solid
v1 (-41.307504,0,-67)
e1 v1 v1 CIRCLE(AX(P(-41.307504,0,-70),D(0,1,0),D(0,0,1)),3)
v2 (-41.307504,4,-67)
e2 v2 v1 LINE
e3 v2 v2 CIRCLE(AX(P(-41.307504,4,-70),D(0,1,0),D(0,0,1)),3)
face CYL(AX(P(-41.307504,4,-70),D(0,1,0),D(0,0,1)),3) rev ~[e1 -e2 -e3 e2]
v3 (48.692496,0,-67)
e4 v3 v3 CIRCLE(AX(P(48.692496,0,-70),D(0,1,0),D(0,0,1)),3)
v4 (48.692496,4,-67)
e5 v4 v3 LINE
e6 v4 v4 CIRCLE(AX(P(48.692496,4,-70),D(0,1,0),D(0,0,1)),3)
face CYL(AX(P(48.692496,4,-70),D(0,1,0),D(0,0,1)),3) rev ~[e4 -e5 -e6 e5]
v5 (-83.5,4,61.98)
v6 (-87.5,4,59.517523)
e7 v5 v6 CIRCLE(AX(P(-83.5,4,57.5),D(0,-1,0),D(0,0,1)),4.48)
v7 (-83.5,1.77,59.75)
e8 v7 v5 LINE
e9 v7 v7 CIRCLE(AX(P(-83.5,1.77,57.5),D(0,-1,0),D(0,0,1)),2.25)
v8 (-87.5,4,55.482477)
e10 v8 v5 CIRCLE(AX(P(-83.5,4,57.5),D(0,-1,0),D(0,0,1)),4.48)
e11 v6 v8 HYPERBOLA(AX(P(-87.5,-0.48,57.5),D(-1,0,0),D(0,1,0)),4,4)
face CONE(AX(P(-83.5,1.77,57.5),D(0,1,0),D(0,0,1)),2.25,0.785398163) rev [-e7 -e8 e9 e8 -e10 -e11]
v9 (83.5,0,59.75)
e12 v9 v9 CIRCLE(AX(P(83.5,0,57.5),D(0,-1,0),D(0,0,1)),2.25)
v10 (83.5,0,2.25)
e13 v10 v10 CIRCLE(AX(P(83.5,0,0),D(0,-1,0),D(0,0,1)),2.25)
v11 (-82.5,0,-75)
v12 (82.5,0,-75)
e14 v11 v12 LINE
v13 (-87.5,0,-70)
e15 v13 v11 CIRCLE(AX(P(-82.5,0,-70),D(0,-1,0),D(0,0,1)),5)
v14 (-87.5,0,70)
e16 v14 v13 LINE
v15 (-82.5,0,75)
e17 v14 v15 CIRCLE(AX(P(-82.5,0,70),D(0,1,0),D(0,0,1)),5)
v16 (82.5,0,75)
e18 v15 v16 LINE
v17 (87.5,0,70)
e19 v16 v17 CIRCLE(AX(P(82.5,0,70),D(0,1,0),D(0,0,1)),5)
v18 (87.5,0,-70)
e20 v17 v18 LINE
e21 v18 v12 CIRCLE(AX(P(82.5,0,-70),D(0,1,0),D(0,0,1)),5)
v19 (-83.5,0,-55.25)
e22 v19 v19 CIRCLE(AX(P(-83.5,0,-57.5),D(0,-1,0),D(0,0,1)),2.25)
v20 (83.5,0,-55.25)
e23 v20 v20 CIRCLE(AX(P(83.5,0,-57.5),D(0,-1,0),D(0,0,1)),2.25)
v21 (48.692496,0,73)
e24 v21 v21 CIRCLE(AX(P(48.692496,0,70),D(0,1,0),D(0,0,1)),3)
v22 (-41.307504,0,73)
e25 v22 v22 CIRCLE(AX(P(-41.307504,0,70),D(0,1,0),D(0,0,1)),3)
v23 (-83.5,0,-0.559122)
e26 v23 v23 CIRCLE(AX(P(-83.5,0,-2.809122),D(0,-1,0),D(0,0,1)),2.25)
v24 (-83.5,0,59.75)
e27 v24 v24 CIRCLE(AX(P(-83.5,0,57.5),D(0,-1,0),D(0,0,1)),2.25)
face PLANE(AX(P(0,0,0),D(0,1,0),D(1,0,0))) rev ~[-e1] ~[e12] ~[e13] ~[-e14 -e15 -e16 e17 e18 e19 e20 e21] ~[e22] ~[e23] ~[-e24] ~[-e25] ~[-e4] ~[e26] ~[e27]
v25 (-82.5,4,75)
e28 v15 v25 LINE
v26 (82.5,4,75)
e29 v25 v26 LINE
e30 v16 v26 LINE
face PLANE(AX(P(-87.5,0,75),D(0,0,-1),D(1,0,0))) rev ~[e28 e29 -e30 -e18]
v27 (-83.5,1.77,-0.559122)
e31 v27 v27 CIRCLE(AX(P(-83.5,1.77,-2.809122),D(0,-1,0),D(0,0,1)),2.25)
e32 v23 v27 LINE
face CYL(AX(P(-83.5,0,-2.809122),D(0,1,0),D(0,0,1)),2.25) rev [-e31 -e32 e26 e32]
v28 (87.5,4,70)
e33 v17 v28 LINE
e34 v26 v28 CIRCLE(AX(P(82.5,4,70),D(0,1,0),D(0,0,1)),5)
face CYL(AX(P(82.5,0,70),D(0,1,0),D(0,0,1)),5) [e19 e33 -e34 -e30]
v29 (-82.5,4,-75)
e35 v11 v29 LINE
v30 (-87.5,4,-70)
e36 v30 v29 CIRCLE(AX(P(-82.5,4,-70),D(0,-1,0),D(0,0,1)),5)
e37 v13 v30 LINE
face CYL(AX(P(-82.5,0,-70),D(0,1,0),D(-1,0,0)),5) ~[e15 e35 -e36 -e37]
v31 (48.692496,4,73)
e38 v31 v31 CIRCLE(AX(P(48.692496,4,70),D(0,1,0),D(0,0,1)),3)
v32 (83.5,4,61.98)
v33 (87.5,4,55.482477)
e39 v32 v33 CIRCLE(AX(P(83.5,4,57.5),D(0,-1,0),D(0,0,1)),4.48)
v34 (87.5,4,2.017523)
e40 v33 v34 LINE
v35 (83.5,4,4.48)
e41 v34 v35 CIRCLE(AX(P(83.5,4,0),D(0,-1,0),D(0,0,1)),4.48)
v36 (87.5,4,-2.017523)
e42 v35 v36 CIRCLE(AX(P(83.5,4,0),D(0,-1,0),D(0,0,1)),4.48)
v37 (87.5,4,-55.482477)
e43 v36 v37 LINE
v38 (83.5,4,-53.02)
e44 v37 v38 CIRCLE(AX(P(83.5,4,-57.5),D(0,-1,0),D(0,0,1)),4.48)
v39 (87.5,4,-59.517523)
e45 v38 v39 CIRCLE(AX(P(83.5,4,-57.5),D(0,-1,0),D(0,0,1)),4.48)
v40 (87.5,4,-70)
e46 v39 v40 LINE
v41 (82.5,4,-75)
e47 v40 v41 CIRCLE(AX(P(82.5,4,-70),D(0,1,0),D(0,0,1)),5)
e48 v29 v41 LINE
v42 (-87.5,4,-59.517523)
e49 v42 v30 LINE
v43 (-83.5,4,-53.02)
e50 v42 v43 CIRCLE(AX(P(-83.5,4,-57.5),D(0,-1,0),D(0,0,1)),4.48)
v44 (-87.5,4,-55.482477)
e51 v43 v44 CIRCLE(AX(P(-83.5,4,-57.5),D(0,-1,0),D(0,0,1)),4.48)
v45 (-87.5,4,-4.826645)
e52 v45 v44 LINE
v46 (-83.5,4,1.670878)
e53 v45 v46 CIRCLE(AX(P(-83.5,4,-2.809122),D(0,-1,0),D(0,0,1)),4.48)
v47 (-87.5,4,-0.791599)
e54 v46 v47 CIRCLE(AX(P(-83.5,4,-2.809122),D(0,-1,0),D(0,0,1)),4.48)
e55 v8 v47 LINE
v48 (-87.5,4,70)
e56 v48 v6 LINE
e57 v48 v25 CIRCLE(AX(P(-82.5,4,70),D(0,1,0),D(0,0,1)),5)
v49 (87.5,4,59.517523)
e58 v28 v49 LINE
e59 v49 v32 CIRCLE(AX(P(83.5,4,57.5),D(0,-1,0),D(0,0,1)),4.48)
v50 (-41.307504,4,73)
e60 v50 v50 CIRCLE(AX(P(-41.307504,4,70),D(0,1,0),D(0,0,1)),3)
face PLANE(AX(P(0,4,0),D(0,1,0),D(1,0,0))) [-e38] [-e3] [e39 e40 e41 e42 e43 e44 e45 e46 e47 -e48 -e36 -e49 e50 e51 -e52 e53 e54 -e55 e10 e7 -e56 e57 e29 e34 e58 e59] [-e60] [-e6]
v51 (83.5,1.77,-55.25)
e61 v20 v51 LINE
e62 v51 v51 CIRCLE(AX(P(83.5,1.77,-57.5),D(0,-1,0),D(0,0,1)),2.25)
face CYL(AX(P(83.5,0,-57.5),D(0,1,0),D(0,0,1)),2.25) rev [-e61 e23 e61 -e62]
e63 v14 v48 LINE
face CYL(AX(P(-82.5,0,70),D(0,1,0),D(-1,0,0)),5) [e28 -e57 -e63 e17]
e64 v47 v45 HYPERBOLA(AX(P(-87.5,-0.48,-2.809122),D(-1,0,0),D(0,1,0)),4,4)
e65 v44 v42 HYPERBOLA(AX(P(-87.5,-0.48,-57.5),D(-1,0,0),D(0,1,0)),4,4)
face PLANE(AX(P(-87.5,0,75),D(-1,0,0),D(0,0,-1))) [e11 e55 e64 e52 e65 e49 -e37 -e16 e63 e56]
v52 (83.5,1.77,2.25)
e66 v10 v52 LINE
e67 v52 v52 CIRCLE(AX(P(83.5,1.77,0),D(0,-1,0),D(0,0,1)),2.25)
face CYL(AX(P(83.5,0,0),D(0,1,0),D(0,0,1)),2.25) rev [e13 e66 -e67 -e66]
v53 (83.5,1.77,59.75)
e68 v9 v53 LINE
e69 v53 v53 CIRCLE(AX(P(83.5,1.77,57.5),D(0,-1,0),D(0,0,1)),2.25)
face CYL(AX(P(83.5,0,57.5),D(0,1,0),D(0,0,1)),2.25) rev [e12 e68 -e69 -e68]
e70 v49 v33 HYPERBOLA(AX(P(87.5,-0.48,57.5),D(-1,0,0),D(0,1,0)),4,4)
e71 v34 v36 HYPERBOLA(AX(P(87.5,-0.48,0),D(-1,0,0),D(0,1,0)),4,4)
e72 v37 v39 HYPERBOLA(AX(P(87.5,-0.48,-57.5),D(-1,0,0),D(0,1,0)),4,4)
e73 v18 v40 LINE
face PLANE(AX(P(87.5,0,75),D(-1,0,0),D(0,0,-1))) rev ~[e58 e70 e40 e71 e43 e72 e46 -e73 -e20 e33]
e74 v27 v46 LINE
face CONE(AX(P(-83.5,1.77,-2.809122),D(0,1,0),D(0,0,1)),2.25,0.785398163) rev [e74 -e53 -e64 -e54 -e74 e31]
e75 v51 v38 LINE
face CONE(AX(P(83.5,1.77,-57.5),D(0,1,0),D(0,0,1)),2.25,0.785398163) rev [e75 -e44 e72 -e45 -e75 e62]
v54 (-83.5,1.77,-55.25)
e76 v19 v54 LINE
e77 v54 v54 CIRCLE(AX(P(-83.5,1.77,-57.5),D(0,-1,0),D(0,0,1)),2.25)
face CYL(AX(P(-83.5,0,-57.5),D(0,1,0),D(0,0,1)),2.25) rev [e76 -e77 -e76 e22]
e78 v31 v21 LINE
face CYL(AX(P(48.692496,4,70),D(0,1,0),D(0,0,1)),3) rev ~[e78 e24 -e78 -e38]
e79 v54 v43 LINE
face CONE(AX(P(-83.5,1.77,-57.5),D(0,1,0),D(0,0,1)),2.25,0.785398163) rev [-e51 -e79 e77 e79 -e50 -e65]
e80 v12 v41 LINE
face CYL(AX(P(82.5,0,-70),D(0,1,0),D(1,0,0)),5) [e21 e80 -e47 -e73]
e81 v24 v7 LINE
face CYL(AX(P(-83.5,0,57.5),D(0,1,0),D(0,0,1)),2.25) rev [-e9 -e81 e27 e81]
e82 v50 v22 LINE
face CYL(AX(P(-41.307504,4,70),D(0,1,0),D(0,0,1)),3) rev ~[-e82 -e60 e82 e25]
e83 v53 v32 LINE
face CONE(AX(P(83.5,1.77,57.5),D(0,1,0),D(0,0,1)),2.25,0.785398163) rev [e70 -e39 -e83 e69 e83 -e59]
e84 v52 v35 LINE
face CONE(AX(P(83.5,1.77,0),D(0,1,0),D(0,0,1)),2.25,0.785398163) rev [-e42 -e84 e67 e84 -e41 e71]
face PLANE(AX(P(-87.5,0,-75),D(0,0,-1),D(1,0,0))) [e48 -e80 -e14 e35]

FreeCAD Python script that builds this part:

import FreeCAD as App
import Part
import Sketcher

V = App.Vector
Q = App.Units.Quantity


def edges_at(feature, points):
    """Names of the edges that pass closest to the given points."""
    edges = feature.Shape.Edges
    near = lambda p: min(range(len(edges)), key=lambda i: edges[i].distToShape(Part.Vertex(*p))[0])
    return sorted({f"Edge{near(p) + 1}" for p in points})

doc = App.newDocument("Part")
params = doc.addObject("Spreadsheet::Sheet", "Params")
for row, (alias, value) in enumerate([
    ("sketch1_width", "175 mm"),
    ("sketch1_height", "150 mm"),
    ("pad1_length", "4 mm"),
    ("fillet_radius", "5 mm"),
    ("sketch2_diameter", "4 mm"),
    ("sketch2_diameter2", "6 mm"),
    ("pocket1_length", "10 mm"),
    ("sketch3_width", "4 mm"),
    ("sketch3_width2", "1.77 mm"),
    ("sketch3_height", "4.48 mm"),
    ("groove_angle", "360 deg"),
    ("linearpattern_pitch", "54.690878 mm"),
    ("linearpattern2_pitch", "115 mm"),
    ("linearpattern3_pitch", "202.765875 mm"),
    ("linearpattern4_pitch", "176.621771 mm"),
    ("linearpattern5_pitch", "167 mm"),
], start=1):
    params.set(f"A{row}", alias)
    params.set(f"B{row}", "=" + value)
    params.setAlias(f"B{row}", alias)

body = doc.addObject("PartDesign::Body", "Body")

# Sketch on XZ plane
sketch1 = doc.addObject("Sketcher::SketchObject", "Sketch")
body.addObject(sketch1)
sketch1.AttachmentSupport = (doc.XZ_Plane, [""])
sketch1.MapMode = "FlatFace"
sketch1.addGeometry([
    Part.LineSegment(V(-88, -75, 0), V(-88, 75, 0)),
    Part.LineSegment(V(-88, 75, 0), V(88, 75, 0)),
    Part.LineSegment(V(88, 75, 0), V(88, -75, 0)),
    Part.LineSegment(V(88, -75, 0), V(-88, -75, 0)),
], False)
sketch1.addConstraint([
    Sketcher.Constraint("Coincident", 0, 2, 1, 1),
    Sketcher.Constraint("Coincident", 1, 2, 2, 1),
    Sketcher.Constraint("Coincident", 2, 2, 3, 1),
    Sketcher.Constraint("Coincident", 3, 2, 0, 1),
    Sketcher.Constraint("Vertical", 0),
    Sketcher.Constraint("Horizontal", 1),
    Sketcher.Constraint("Vertical", 2),
    Sketcher.Constraint("Horizontal", 3),
    Sketcher.Constraint("Symmetric", 0, 2, 2, 2, -1, 1),
    Sketcher.Constraint("DistanceX", 1, 1, 1, 2, 175.0),
    Sketcher.Constraint("DistanceY", 0, 1, 0, 2, 150.0),
])
sketch1.setExpression("Constraints[9]", "Params.sketch1_width")
sketch1.setExpression("Constraints[10]", "Params.sketch1_height")
pad1 = doc.addObject("PartDesign::Pad", "Pad")
body.addObject(pad1)
pad1.Profile = sketch1
pad1.setExpression("Length", "Params.pad1_length")
pad1.Reversed = True
doc.recompute()

fillet = doc.addObject("PartDesign::Fillet", "Fillet")
body.addObject(fillet)
fillet.Base = (pad1, edges_at(pad1, [
    (-87.5, 2, -75),
    (87.5, 2, -75),
    (87.5, 2, 75),
    (-87.5, 2, 75),
]))
fillet.setExpression("Radius", "Params.fillet_radius")

# Sketch on XZ plane
sketch2 = doc.addObject("Sketcher::SketchObject", "Sketch001")
body.addObject(sketch2)
sketch2.AttachmentSupport = (doc.XZ_Plane, [""])
sketch2.MapMode = "FlatFace"
sketch2.AttachmentOffset = App.Placement(V(0, 0, -4), App.Rotation())
sketch2.addGeometry([
    Part.Circle(V(-83.5, 57.5, 0), V(0, 0, 1), 2),  # 0
    Part.Circle(V(83.5, 57.5, 0), V(0, 0, 1), 2),  # 1
    Part.Circle(V(83.5, 0, 0), V(0, 0, 1), 2),  # 2
    Part.Circle(V(83.5, -57.5, 0), V(0, 0, 1), 2),  # 3
    Part.Circle(V(-83.5, -57.5, 0), V(0, 0, 1), 2),  # 4
    Part.Circle(V(-83.5, -2.8, 0), V(0, 0, 1), 2),  # 5
    Part.Circle(V(-41.3, 70, 0), V(0, 0, 1), 3),  # 6
    Part.Circle(V(48.7, 70, 0), V(0, 0, 1), 3),  # 7
    Part.Circle(V(-41.3, -70, 0), V(0, 0, 1), 3),  # 8
    Part.Circle(V(48.7, -70, 0), V(0, 0, 1), 3),  # 9
], False)
sketch2.addConstraint([
    Sketcher.Constraint("Equal", 0, 1),
    Sketcher.Constraint("Equal", 1, 2),
    Sketcher.Constraint("Equal", 2, 3),
    Sketcher.Constraint("Equal", 3, 4),
    Sketcher.Constraint("Equal", 4, 5),
    Sketcher.Constraint("Equal", 6, 7),
    Sketcher.Constraint("Equal", 7, 8),
    Sketcher.Constraint("Equal", 8, 9),
    Sketcher.Constraint("Symmetric", 0, 3, 3, 3, -1, 1),
    Sketcher.Constraint("Symmetric", 1, 3, 4, 3, -1, 1),
    Sketcher.Constraint("Symmetric", 0, 3, 1, 3, -2),
    Sketcher.Constraint("Symmetric", 6, 3, 8, 3, -1),
    Sketcher.Constraint("Symmetric", 7, 3, 9, 3, -1),
    Sketcher.Constraint("PointOnObject", 2, 3, -1),
    Sketcher.Constraint("Horizontal", 6, 3, 7, 3),
    Sketcher.Constraint("Vertical", 1, 3, 2, 3),
    Sketcher.Constraint("Vertical", 4, 3, 5, 3),
    Sketcher.Constraint("Diameter", 0, 4.0),
    Sketcher.Constraint("Diameter", 6, 6.0),
    Sketcher.Constraint("DistanceY", -1, 1, 6, 3, 70.0),
    Sketcher.Constraint("DistanceX", 0, 3, 1, 3, 167.0),
    Sketcher.Constraint("DistanceY", 3, 3, 1, 3, 115.0),
    Sketcher.Constraint("DistanceX", 6, 3, 7, 3, 90.0),
    Sketcher.Constraint("DistanceY", 5, 3, -1, 1, 2.809122),
    Sketcher.Constraint("DistanceX", 6, 3, -1, 1, 41.307504),
])
sketch2.setExpression("Constraints[17]", "Params.sketch2_diameter")
sketch2.setExpression("Constraints[18]", "Params.sketch2_diameter2")
pocket1 = doc.addObject("PartDesign::Pocket", "Pocket")
body.addObject(pocket1)
pocket1.Profile = sketch2
pocket1.setExpression("Length", "Params.pocket1_length")
pocket1.Reversed = True

# Sketch on YZ plane
sketch3 = doc.addObject("Sketcher::SketchObject", "Sketch002")
body.addObject(sketch3)
sketch3.AttachmentSupport = (doc.YZ_Plane, [""])
sketch3.MapMode = "FlatFace"
sketch3.AttachmentOffset = App.Placement(V(0, 0, -83.5), App.Rotation())
sketch3.addGeometry([
    Part.LineSegment(V(0, -57.5, 0), V(4, -57.5, 0)),  # 0
    Part.LineSegment(V(4, -57.5, 0), V(4, -53, 0)),  # 1
    Part.LineSegment(V(4, -53, 0), V(1.8, -55.2, 0)),  # 2
    Part.LineSegment(V(1.8, -55.2, 0), V(0, -55.2, 0)),  # 3
    Part.LineSegment(V(0, -55.2, 0), V(0, -57.5, 0)),  # 4
], False)
sketch3.addGeometry(Part.LineSegment(V(4, -57.5, 0), V(0, -57.5, 0)), True)  # axis
sketch3.addConstraint([
    Sketcher.Constraint("Coincident", 0, 2, 1, 1),
    Sketcher.Constraint("Coincident", 1, 2, 2, 1),
    Sketcher.Constraint("Coincident", 2, 2, 3, 1),
    Sketcher.Constraint("Coincident", 3, 2, 4, 1),
    Sketcher.Constraint("Coincident", 4, 2, 0, 1),
    Sketcher.Constraint("Horizontal", 0),
    Sketcher.Constraint("Vertical", 1),
    Sketcher.Constraint("Horizontal", 3),
    Sketcher.Constraint("Vertical", 4),
    Sketcher.Constraint("Horizontal", 5),
    Sketcher.Constraint("Coincident", 5, 1, 0, 2),
    Sketcher.Constraint("PointOnObject", 3, 2, -2),
    Sketcher.Constraint("PointOnObject", 5, 2, -2),
    Sketcher.Constraint("DistanceX", 0, 1, 0, 2, 4.0),
    Sketcher.Constraint("Angle", 2, Q("-135 deg")),
    Sketcher.Constraint("DistanceX", 3, 2, 3, 1, 1.77),
    Sketcher.Constraint("DistanceY", 1, 1, 1, 2, 4.48),
    Sketcher.Constraint("DistanceY", 0, 2, -1, 1, 57.5),
])
sketch3.setExpression("Constraints[13]", "Params.sketch3_width")
sketch3.setExpression("Constraints[15]", "Params.sketch3_width2")
sketch3.setExpression("Constraints[16]", "Params.sketch3_height")
groove = doc.addObject("PartDesign::Groove", "Groove")
body.addObject(groove)
groove.Profile = sketch3
groove.ReferenceAxis = (sketch3, ["Axis0"])
groove.setExpression("Angle", "Params.groove_angle")
doc.recompute()

linearpattern = doc.addObject("PartDesign::LinearPattern", "LinearPattern")
body.addObject(linearpattern)
linearpattern.Originals = [groove]
linearpattern.Direction = (doc.Z_Axis, [""])
linearpattern.Mode = "offset"
linearpattern.setExpression("Offset", "Params.linearpattern_pitch")
linearpattern.Occurrences = 2
body.Tip = linearpattern
doc.recompute()

linearpattern2 = doc.addObject("PartDesign::LinearPattern", "LinearPattern001")
body.addObject(linearpattern2)
linearpattern2.Originals = [groove]
linearpattern2.Direction = (doc.Z_Axis, [""])
linearpattern2.Mode = "offset"
linearpattern2.setExpression("Offset", "Params.linearpattern2_pitch")
linearpattern2.Occurrences = 2
body.Tip = linearpattern2
doc.recompute()

datumline = doc.addObject("PartDesign::Line", "DatumLine")
body.addObject(datumline)
datumline.Placement = App.Placement(V(0, 0, 0), App.Rotation(V(0, 0, 1), V(0.823609989, 0, 0.567156579)))
linearpattern3 = doc.addObject("PartDesign::LinearPattern", "LinearPattern002")
body.addObject(linearpattern3)
linearpattern3.Originals = [groove]
linearpattern3.Direction = (datumline, [""])
linearpattern3.Mode = "offset"
linearpattern3.setExpression("Offset", "Params.linearpattern3_pitch")
linearpattern3.Occurrences = 2
body.Tip = linearpattern3
doc.recompute()

datumline2 = doc.addObject("PartDesign::Line", "DatumLine001")
body.addObject(datumline2)
datumline2.Placement = App.Placement(V(0, 0, 0), App.Rotation(V(0, 0, 1), V(0.945523301, 0, 0.32555443)))
linearpattern4 = doc.addObject("PartDesign::LinearPattern", "LinearPattern003")
body.addObject(linearpattern4)
linearpattern4.Originals = [groove]
linearpattern4.Direction = (datumline2, [""])
linearpattern4.Mode = "offset"
linearpattern4.setExpression("Offset", "Params.linearpattern4_pitch")
linearpattern4.Occurrences = 2
body.Tip = linearpattern4
doc.recompute()

linearpattern5 = doc.addObject("PartDesign::LinearPattern", "LinearPattern004")
body.addObject(linearpattern5)
linearpattern5.Originals = [groove]
linearpattern5.Direction = (doc.X_Axis, [""])
linearpattern5.Mode = "offset"
linearpattern5.setExpression("Offset", "Params.linearpattern5_pitch")
linearpattern5.Occurrences = 2
body.Tip = linearpattern5

doc.recompute()
